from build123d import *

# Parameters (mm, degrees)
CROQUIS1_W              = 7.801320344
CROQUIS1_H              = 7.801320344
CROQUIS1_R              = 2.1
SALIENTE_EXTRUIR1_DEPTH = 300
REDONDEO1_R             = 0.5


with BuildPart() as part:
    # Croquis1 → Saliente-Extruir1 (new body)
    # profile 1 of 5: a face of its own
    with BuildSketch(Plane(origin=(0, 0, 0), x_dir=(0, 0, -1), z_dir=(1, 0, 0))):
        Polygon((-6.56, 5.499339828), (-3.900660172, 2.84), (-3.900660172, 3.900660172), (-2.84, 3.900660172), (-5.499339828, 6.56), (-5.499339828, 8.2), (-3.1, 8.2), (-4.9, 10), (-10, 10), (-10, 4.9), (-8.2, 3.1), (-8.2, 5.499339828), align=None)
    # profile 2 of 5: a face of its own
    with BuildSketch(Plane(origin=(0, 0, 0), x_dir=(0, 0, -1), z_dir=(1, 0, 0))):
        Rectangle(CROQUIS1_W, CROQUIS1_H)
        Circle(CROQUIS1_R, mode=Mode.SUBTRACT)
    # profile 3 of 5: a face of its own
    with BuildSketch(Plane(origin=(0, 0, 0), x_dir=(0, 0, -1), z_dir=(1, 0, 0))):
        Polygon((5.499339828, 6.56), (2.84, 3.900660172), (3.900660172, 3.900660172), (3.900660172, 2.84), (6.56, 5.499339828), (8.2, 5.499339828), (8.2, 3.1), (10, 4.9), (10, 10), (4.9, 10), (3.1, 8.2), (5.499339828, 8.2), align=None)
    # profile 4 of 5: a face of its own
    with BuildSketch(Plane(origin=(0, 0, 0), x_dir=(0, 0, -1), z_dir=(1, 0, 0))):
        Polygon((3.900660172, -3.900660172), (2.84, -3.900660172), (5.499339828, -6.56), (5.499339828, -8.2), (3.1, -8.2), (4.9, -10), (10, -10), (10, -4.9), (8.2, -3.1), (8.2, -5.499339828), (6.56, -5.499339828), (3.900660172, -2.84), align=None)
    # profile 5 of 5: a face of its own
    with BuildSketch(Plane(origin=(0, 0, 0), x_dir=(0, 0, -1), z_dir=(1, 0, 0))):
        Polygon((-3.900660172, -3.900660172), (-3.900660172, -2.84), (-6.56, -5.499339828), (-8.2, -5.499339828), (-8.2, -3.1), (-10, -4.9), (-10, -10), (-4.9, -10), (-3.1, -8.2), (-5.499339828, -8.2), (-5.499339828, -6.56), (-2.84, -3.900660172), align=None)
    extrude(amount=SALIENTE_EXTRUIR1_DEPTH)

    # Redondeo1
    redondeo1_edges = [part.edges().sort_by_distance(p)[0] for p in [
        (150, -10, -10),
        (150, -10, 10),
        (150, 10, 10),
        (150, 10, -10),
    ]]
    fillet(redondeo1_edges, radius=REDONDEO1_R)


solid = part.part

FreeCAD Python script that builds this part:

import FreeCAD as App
import Part
import Sketcher

V = App.Vector


def edges_at(feature, points):
    """Names of the edges that pass closest to the given points."""
    edges = feature.Shape.Edges
    near = lambda p: min(range(len(edges)), key=lambda i: edges[i].distToShape(Part.Vertex(*p))[0])
    return sorted({f"Edge{near(p) + 1}" for p in points})

doc = App.newDocument("Part")
body = doc.addObject("PartDesign::Body", "Body")

# Sketch on YZ plane
sketch1 = doc.addObject("Sketcher::SketchObject", "Sketch")
body.addObject(sketch1)
sketch1.AttachmentSupport = (doc.YZ_Plane, [""])
sketch1.MapMode = "FlatFace"
sketch1.addGeometry(Part.LineSegment(V(5.5, 6.6, 0), V(2.8, 3.9, 0)), False)
sketch1.addGeometry(Part.LineSegment(V(2.8, 3.9, 0), V(-2.8, 3.9, 0)), False)
sketch1.addGeometry(Part.LineSegment(V(-2.8, 3.9, 0), V(-5.5, 6.6, 0)), False)
sketch1.addGeometry(Part.LineSegment(V(-5.5, 6.6, 0), V(-5.5, 8.2, 0)), False)
sketch1.addGeometry(Part.LineSegment(V(-5.5, 8.2, 0), V(-3.1, 8.2, 0)), False)
sketch1.addGeometry(Part.LineSegment(V(-3.1, 8.2, 0), V(-4.9, 10, 0)), False)
sketch1.addGeometry(Part.LineSegment(V(-4.9, 10, 0), V(-10, 10, 0)), False)
sketch1.addGeometry(Part.LineSegment(V(-10, 10, 0), V(-10, 4.9, 0)), False)
sketch1.addGeometry(Part.LineSegment(V(-10, 4.9, 0), V(-8.2, 3.1, 0)), False)
sketch1.addGeometry(Part.LineSegment(V(-8.2, 3.1, 0), V(-8.2, 5.5, 0)), False)
sketch1.addGeometry(Part.LineSegment(V(-8.2, 5.5, 0), V(-6.6, 5.5, 0)), False)
sketch1.addGeometry(Part.LineSegment(V(-6.6, 5.5, 0), V(-3.9, 2.8, 0)), False)
sketch1.addGeometry(Part.LineSegment(V(-3.9, 2.8, 0), V(-3.9, -2.8, 0)), False)
sketch1.addGeometry(Part.LineSegment(V(-3.9, -2.8, 0), V(-6.6, -5.5, 0)), False)
sketch1.addGeometry(Part.LineSegment(V(-6.6, -5.5, 0), V(-8.2, -5.5, 0)), False)
sketch1.addGeometry(Part.LineSegment(V(-8.2, -5.5, 0), V(-8.2, -3.1, 0)), False)
sketch1.addGeometry(Part.LineSegment(V(-8.2, -3.1, 0), V(-10, -4.9, 0)), False)
sketch1.addGeometry(Part.LineSegment(V(-10, -4.9, 0), V(-10, -10, 0)), False)
sketch1.addGeometry(Part.LineSegment(V(-10, -10, 0), V(-4.9, -10, 0)), False)
sketch1.addGeometry(Part.LineSegment(V(-4.9, -10, 0), V(-3.1, -8.2, 0)), False)
sketch1.addGeometry(Part.LineSegment(V(-3.1, -8.2, 0), V(-5.5, -8.2, 0)), False)
sketch1.addGeometry(Part.LineSegment(V(-5.5, -8.2, 0), V(-5.5, -6.6, 0)), False)
sketch1.addGeometry(Part.LineSegment(V(-5.5, -6.6, 0), V(-2.8, -3.9, 0)), False)
sketch1.addGeometry(Part.LineSegment(V(-2.8, -3.9, 0), V(2.8, -3.9, 0)), False)
sketch1.addGeometry(Part.LineSegment(V(2.8, -3.9, 0), V(5.5, -6.6, 0)), False)
sketch1.addGeometry(Part.LineSegment(V(5.5, -6.6, 0), V(5.5, -8.2, 0)), False)
sketch1.addGeometry(Part.LineSegment(V(5.5, -8.2, 0), V(3.1, -8.2, 0)), False)
sketch1.addGeometry(Part.LineSegment(V(3.1, -8.2, 0), V(4.9, -10, 0)), False)
sketch1.addGeometry(Part.LineSegment(V(4.9, -10, 0), V(10, -10, 0)), False)
sketch1.addGeometry(Part.LineSegment(V(10, -10, 0), V(10, -4.9, 0)), False)
sketch1.addGeometry(Part.LineSegment(V(10, -4.9, 0), V(8.2, -3.1, 0)), False)
sketch1.addGeometry(Part.LineSegment(V(8.2, -3.1, 0), V(8.2, -5.5, 0)), False)
sketch1.addGeometry(Part.LineSegment(V(8.2, -5.5, 0), V(6.6, -5.5, 0)), False)
sketch1.addGeometry(Part.LineSegment(V(6.6, -5.5, 0), V(3.9, -2.8, 0)), False)
sketch1.addGeometry(Part.LineSegment(V(3.9, -2.8, 0), V(3.9, 2.8, 0)), False)
sketch1.addGeometry(Part.LineSegment(V(3.9, 2.8, 0), V(6.6, 5.5, 0)), False)
sketch1.addGeometry(Part.LineSegment(V(6.6, 5.5, 0), V(8.2, 5.5, 0)), False)
sketch1.addGeometry(Part.LineSegment(V(8.2, 5.5, 0), V(8.2, 3.1, 0)), False)
sketch1.addGeometry(Part.LineSegment(V(8.2, 3.1, 0), V(10, 4.9, 0)), False)
sketch1.addGeometry(Part.LineSegment(V(10, 4.9, 0), V(10, 10, 0)), False)
sketch1.addGeometry(Part.LineSegment(V(10, 10, 0), V(4.9, 10, 0)), False)
sketch1.addGeometry(Part.LineSegment(V(4.9, 10, 0), V(3.1, 8.2, 0)), False)
sketch1.addGeometry(Part.LineSegment(V(3.1, 8.2, 0), V(5.5, 8.2, 0)), False)
sketch1.addGeometry(Part.LineSegment(V(5.5, 8.2, 0), V(5.5, 6.6, 0)), False)
sketch1.addGeometry(Part.Circle(V(0, 0, 0), V(0, 0, 1), 2.1), False)
sketch1.addConstraint(Sketcher.Constraint("Coincident", 0, 2, 1, 1))
sketch1.addConstraint(Sketcher.Constraint("Coincident", 1, 2, 2, 1))
sketch1.addConstraint(Sketcher.Constraint("Coincident", 2, 2, 3, 1))
sketch1.addConstraint(Sketcher.Constraint("Coincident", 3, 2, 4, 1))
sketch1.addConstraint(Sketcher.Constraint("Coincident", 4, 2, 5, 1))
sketch1.addConstraint(Sketcher.Constraint("Coincident", 5, 2, 6, 1))
sketch1.addConstraint(Sketcher.Constraint("Coincident", 6, 2, 7, 1))
sketch1.addConstraint(Sketcher.Constraint("Coincident", 7, 2, 8, 1))
sketch1.addConstraint(Sketcher.Constraint("Coincident", 8, 2, 9, 1))
sketch1.addConstraint(Sketcher.Constraint("Coincident", 9, 2, 10, 1))
sketch1.addConstraint(Sketcher.Constraint("Coincident", 10, 2, 11, 1))
sketch1.addConstraint(Sketcher.Constraint("Coincident", 11, 2, 12, 1))
sketch1.addConstraint(Sketcher.Constraint("Coincident", 12, 2, 13, 1))
sketch1.addConstraint(Sketcher.Constraint("Coincident", 13, 2, 14, 1))
sketch1.addConstraint(Sketcher.Constraint("Coincident", 14, 2, 15, 1))
sketch1.addConstraint(Sketcher.Constraint("Coincident", 15, 2, 16, 1))
sketch1.addConstraint(Sketcher.Constraint("Coincident", 16, 2, 17, 1))
sketch1.addConstraint(Sketcher.Constraint("Coincident", 17, 2, 18, 1))
sketch1.addConstraint(Sketcher.Constraint("Coincident", 18, 2, 19, 1))
sketch1.addConstraint(Sketcher.Constraint("Coincident", 19, 2, 20, 1))
sketch1.addConstraint(Sketcher.Constraint("Coincident", 20, 2, 21, 1))
sketch1.addConstraint(Sketcher.Constraint("Coincident", 21, 2, 22, 1))
sketch1.addConstraint(Sketcher.Constraint("Coincident", 22, 2, 23, 1))
sketch1.addConstraint(Sketcher.Constraint("Coincident", 23, 2, 24, 1))
sketch1.addConstraint(Sketcher.Constraint("Coincident", 24, 2, 25, 1))
sketch1.addConstraint(Sketcher.Constraint("Coincident", 25, 2, 26, 1))
sketch1.addConstraint(Sketcher.Constraint("Coincident", 26, 2, 27, 1))
sketch1.addConstraint(Sketcher.Constraint("Coincident", 27, 2, 28, 1))
sketch1.addConstraint(Sketcher.Constraint("Coincident", 28, 2, 29, 1))
sketch1.addConstraint(Sketcher.Constraint("Coincident", 29, 2, 30, 1))
sketch1.addConstraint(Sketcher.Constraint("Coincident", 30, 2, 31, 1))
sketch1.addConstraint(Sketcher.Constraint("Coincident", 31, 2, 32, 1))
sketch1.addConstraint(Sketcher.Constraint("Coincident", 32, 2, 33, 1))
sketch1.addConstraint(Sketcher.Constraint("Coincident", 33, 2, 34, 1))
sketch1.addConstraint(Sketcher.Constraint("Coincident", 34, 2, 35, 1))
sketch1.addConstraint(Sketcher.Constraint("Coincident", 35, 2, 36, 1))
sketch1.addConstraint(Sketcher.Constraint("Coincident", 36, 2, 37, 1))
sketch1.addConstraint(Sketcher.Constraint("Coincident", 37, 2, 38, 1))
sketch1.addConstraint(Sketcher.Constraint("Coincident", 38, 2, 39, 1))
sketch1.addConstraint(Sketcher.Constraint("Coincident", 39, 2, 40, 1))
sketch1.addConstraint(Sketcher.Constraint("Coincident", 40, 2, 41, 1))
sketch1.addConstraint(Sketcher.Constraint("Coincident", 41, 2, 42, 1))
sketch1.addConstraint(Sketcher.Constraint("Coincident", 42, 2, 43, 1))
sketch1.addConstraint(Sketcher.Constraint("Coincident", 43, 2, 0, 1))
sketch1.addConstraint(Sketcher.Constraint("Horizontal", 1))
sketch1.addConstraint(Sketcher.Constraint("Vertical", 3))
sketch1.addConstraint(Sketcher.Constraint("Horizontal", 4))
sketch1.addConstraint(Sketcher.Constraint("Horizontal", 6))
sketch1.addConstraint(Sketcher.Constraint("Vertical", 7))
sketch1.addConstraint(Sketcher.Constraint("Vertical", 9))
sketch1.addConstraint(Sketcher.Constraint("Horizontal", 10))
sketch1.addConstraint(Sketcher.Constraint("Vertical", 12))
sketch1.addConstraint(Sketcher.Constraint("Horizontal", 14))
sketch1.addConstraint(Sketcher.Constraint("Vertical", 15))
sketch1.addConstraint(Sketcher.Constraint("Vertical", 17))
sketch1.addConstraint(Sketcher.Constraint("Horizontal", 18))
sketch1.addConstraint(Sketcher.Constraint("Horizontal", 20))
sketch1.addConstraint(Sketcher.Constraint("Vertical", 21))
sketch1.addConstraint(Sketcher.Constraint("Horizontal", 23))
sketch1.addConstraint(Sketcher.Constraint("Vertical", 25))
sketch1.addConstraint(Sketcher.Constraint("Horizontal", 26))
sketch1.addConstraint(Sketcher.Constraint("Horizontal", 28))
sketch1.addConstraint(Sketcher.Constraint("Vertical", 29))
sketch1.addConstraint(Sketcher.Constraint("Vertical", 31))
sketch1.addConstraint(Sketcher.Constraint("Horizontal", 32))
sketch1.addConstraint(Sketcher.Constraint("Vertical", 34))
sketch1.addConstraint(Sketcher.Constraint("Horizontal", 36))
sketch1.addConstraint(Sketcher.Constraint("Vertical", 37))
sketch1.addConstraint(Sketcher.Constraint("Vertical", 39))
sketch1.addConstraint(Sketcher.Constraint("Horizontal", 40))
sketch1.addConstraint(Sketcher.Constraint("Horizontal", 42))
sketch1.addConstraint(Sketcher.Constraint("Vertical", 43))
sketch1.addConstraint(Sketcher.Constraint("Coincident", 44, 3, -1, 1))
sketch1.addConstraint(Sketcher.Constraint("Symmetric", 0, 2, 22, 2, -1, 1))
sketch1.addConstraint(Sketcher.Constraint("Symmetric", 2, 2, 24, 2, -1, 1))
sketch1.addConstraint(Sketcher.Constraint("Symmetric", 4, 2, 26, 2, -1, 1))
sketch1.addConstraint(Sketcher.Constraint("Symmetric", 5, 2, 27, 2, -1, 1))
sketch1.addConstraint(Sketcher.Constraint("Symmetric", 7, 2, 29, 2, -1, 1))
sketch1.addConstraint(Sketcher.Constraint("Symmetric", 8, 2, 30, 2, -1, 1))
sketch1.addConstraint(Sketcher.Constraint("Symmetric", 10, 2, 32, 2, -1, 1))
sketch1.addConstraint(Sketcher.Constraint("Symmetric", 11, 2, 33, 2, -1, 1))
sketch1.addConstraint(Sketcher.Constraint("Symmetric", 13, 2, 35, 2, -1, 1))
sketch1.addConstraint(Sketcher.Constraint("Symmetric", 15, 2, 37, 2, -1, 1))
sketch1.addConstraint(Sketcher.Constraint("Symmetric", 16, 2, 38, 2, -1, 1))
sketch1.addConstraint(Sketcher.Constraint("Symmetric", 18, 2, 40, 2, -1, 1))
sketch1.addConstraint(Sketcher.Constraint("Symmetric", 19, 2, 41, 2, -1, 1))
sketch1.addConstraint(Sketcher.Constraint("Symmetric", 21, 2, 43, 2, -1, 1))
sketch1.addConstraint(Sketcher.Constraint("Symmetric", 21, 2, 24, 2, -2))
sketch1.addConstraint(Sketcher.Constraint("Symmetric", 19, 2, 26, 2, -2))
sketch1.addConstraint(Sketcher.Constraint("Symmetric", 18, 2, 27, 2, -2))
sketch1.addConstraint(Sketcher.Constraint("Symmetric", 16, 2, 29, 2, -2))
sketch1.addConstraint(Sketcher.Constraint("Symmetric", 15, 2, 30, 2, -2))
sketch1.addConstraint(Sketcher.Constraint("Symmetric", 13, 2, 32, 2, -2))
sketch1.addConstraint(Sketcher.Constraint("Perpendicular", 0, 2))
sketch1.addConstraint(Sketcher.Constraint("Parallel", 2, 5))
sketch1.addConstraint(Sketcher.Constraint("Parallel", 5, 8))
sketch1.addConstraint(Sketcher.Constraint("Parallel", 8, 11))
sketch1.addConstraint(Sketcher.Constraint("Perpendicular", 11, 13))
sketch1.addConstraint(Sketcher.Constraint("Parallel", 13, 16))
sketch1.addConstraint(Sketcher.Constraint("Perpendicular", 22, 24))
sketch1.addConstraint(Sketcher.Constraint("Perpendicular", 33, 35))
sketch1.addConstraint(Sketcher.Constraint("Equal", 36, 3))
sketch1.addConstraint(Sketcher.Constraint("Equal", 40, 7))
sketch1.addConstraint(Sketcher.Constraint("Equal", 42, 9))
sketch1.addConstraint(Sketcher.Constraint("Equal", 23, 12))
sketch1.addConstraint(Sketcher.Constraint("Equal", 5, 8))
sketch1.addConstraint(Sketcher.Constraint("Equal", 2, 11))
sketch1.addConstraint(Sketcher.Constraint("Diameter", 44, 4.2))
sketch1.addConstraint(Sketcher.Constraint("DistanceX", 6, 2, 6, 1, 5.1))
sketch1.addConstraint(Sketcher.Constraint("DistanceY", -1, 1, 5, 2, 10.0))
sketch1.addConstraint(Sketcher.Constraint("DistanceY", 16, 2, 8, 2, 8.0))
sketch1.addConstraint(Sketcher.Constraint("DistanceX", 1, 2, 1, 1, 5.68))
sketch1.addConstraint(Sketcher.Constraint("DistanceX", 10, 1, 10, 2, 1.64))
sketch1.addConstraint(Sketcher.Constraint("DistanceX", 4, 1, 4, 2, 2.39934))
pad1 = doc.addObject("PartDesign::Pad", "Pad")
body.addObject(pad1)
pad1.Profile = sketch1
pad1.Length = 300
doc.recompute()

fillet = doc.addObject("PartDesign::Fillet", "Fillet")
body.addObject(fillet)
fillet.Base = (pad1, edges_at(pad1, [
    (150, -10, -10),
    (150, -10, 10),
    (150, 10, 10),
    (150, 10, -10),
]))
fillet.Radius = 0.5

doc.recompute()
